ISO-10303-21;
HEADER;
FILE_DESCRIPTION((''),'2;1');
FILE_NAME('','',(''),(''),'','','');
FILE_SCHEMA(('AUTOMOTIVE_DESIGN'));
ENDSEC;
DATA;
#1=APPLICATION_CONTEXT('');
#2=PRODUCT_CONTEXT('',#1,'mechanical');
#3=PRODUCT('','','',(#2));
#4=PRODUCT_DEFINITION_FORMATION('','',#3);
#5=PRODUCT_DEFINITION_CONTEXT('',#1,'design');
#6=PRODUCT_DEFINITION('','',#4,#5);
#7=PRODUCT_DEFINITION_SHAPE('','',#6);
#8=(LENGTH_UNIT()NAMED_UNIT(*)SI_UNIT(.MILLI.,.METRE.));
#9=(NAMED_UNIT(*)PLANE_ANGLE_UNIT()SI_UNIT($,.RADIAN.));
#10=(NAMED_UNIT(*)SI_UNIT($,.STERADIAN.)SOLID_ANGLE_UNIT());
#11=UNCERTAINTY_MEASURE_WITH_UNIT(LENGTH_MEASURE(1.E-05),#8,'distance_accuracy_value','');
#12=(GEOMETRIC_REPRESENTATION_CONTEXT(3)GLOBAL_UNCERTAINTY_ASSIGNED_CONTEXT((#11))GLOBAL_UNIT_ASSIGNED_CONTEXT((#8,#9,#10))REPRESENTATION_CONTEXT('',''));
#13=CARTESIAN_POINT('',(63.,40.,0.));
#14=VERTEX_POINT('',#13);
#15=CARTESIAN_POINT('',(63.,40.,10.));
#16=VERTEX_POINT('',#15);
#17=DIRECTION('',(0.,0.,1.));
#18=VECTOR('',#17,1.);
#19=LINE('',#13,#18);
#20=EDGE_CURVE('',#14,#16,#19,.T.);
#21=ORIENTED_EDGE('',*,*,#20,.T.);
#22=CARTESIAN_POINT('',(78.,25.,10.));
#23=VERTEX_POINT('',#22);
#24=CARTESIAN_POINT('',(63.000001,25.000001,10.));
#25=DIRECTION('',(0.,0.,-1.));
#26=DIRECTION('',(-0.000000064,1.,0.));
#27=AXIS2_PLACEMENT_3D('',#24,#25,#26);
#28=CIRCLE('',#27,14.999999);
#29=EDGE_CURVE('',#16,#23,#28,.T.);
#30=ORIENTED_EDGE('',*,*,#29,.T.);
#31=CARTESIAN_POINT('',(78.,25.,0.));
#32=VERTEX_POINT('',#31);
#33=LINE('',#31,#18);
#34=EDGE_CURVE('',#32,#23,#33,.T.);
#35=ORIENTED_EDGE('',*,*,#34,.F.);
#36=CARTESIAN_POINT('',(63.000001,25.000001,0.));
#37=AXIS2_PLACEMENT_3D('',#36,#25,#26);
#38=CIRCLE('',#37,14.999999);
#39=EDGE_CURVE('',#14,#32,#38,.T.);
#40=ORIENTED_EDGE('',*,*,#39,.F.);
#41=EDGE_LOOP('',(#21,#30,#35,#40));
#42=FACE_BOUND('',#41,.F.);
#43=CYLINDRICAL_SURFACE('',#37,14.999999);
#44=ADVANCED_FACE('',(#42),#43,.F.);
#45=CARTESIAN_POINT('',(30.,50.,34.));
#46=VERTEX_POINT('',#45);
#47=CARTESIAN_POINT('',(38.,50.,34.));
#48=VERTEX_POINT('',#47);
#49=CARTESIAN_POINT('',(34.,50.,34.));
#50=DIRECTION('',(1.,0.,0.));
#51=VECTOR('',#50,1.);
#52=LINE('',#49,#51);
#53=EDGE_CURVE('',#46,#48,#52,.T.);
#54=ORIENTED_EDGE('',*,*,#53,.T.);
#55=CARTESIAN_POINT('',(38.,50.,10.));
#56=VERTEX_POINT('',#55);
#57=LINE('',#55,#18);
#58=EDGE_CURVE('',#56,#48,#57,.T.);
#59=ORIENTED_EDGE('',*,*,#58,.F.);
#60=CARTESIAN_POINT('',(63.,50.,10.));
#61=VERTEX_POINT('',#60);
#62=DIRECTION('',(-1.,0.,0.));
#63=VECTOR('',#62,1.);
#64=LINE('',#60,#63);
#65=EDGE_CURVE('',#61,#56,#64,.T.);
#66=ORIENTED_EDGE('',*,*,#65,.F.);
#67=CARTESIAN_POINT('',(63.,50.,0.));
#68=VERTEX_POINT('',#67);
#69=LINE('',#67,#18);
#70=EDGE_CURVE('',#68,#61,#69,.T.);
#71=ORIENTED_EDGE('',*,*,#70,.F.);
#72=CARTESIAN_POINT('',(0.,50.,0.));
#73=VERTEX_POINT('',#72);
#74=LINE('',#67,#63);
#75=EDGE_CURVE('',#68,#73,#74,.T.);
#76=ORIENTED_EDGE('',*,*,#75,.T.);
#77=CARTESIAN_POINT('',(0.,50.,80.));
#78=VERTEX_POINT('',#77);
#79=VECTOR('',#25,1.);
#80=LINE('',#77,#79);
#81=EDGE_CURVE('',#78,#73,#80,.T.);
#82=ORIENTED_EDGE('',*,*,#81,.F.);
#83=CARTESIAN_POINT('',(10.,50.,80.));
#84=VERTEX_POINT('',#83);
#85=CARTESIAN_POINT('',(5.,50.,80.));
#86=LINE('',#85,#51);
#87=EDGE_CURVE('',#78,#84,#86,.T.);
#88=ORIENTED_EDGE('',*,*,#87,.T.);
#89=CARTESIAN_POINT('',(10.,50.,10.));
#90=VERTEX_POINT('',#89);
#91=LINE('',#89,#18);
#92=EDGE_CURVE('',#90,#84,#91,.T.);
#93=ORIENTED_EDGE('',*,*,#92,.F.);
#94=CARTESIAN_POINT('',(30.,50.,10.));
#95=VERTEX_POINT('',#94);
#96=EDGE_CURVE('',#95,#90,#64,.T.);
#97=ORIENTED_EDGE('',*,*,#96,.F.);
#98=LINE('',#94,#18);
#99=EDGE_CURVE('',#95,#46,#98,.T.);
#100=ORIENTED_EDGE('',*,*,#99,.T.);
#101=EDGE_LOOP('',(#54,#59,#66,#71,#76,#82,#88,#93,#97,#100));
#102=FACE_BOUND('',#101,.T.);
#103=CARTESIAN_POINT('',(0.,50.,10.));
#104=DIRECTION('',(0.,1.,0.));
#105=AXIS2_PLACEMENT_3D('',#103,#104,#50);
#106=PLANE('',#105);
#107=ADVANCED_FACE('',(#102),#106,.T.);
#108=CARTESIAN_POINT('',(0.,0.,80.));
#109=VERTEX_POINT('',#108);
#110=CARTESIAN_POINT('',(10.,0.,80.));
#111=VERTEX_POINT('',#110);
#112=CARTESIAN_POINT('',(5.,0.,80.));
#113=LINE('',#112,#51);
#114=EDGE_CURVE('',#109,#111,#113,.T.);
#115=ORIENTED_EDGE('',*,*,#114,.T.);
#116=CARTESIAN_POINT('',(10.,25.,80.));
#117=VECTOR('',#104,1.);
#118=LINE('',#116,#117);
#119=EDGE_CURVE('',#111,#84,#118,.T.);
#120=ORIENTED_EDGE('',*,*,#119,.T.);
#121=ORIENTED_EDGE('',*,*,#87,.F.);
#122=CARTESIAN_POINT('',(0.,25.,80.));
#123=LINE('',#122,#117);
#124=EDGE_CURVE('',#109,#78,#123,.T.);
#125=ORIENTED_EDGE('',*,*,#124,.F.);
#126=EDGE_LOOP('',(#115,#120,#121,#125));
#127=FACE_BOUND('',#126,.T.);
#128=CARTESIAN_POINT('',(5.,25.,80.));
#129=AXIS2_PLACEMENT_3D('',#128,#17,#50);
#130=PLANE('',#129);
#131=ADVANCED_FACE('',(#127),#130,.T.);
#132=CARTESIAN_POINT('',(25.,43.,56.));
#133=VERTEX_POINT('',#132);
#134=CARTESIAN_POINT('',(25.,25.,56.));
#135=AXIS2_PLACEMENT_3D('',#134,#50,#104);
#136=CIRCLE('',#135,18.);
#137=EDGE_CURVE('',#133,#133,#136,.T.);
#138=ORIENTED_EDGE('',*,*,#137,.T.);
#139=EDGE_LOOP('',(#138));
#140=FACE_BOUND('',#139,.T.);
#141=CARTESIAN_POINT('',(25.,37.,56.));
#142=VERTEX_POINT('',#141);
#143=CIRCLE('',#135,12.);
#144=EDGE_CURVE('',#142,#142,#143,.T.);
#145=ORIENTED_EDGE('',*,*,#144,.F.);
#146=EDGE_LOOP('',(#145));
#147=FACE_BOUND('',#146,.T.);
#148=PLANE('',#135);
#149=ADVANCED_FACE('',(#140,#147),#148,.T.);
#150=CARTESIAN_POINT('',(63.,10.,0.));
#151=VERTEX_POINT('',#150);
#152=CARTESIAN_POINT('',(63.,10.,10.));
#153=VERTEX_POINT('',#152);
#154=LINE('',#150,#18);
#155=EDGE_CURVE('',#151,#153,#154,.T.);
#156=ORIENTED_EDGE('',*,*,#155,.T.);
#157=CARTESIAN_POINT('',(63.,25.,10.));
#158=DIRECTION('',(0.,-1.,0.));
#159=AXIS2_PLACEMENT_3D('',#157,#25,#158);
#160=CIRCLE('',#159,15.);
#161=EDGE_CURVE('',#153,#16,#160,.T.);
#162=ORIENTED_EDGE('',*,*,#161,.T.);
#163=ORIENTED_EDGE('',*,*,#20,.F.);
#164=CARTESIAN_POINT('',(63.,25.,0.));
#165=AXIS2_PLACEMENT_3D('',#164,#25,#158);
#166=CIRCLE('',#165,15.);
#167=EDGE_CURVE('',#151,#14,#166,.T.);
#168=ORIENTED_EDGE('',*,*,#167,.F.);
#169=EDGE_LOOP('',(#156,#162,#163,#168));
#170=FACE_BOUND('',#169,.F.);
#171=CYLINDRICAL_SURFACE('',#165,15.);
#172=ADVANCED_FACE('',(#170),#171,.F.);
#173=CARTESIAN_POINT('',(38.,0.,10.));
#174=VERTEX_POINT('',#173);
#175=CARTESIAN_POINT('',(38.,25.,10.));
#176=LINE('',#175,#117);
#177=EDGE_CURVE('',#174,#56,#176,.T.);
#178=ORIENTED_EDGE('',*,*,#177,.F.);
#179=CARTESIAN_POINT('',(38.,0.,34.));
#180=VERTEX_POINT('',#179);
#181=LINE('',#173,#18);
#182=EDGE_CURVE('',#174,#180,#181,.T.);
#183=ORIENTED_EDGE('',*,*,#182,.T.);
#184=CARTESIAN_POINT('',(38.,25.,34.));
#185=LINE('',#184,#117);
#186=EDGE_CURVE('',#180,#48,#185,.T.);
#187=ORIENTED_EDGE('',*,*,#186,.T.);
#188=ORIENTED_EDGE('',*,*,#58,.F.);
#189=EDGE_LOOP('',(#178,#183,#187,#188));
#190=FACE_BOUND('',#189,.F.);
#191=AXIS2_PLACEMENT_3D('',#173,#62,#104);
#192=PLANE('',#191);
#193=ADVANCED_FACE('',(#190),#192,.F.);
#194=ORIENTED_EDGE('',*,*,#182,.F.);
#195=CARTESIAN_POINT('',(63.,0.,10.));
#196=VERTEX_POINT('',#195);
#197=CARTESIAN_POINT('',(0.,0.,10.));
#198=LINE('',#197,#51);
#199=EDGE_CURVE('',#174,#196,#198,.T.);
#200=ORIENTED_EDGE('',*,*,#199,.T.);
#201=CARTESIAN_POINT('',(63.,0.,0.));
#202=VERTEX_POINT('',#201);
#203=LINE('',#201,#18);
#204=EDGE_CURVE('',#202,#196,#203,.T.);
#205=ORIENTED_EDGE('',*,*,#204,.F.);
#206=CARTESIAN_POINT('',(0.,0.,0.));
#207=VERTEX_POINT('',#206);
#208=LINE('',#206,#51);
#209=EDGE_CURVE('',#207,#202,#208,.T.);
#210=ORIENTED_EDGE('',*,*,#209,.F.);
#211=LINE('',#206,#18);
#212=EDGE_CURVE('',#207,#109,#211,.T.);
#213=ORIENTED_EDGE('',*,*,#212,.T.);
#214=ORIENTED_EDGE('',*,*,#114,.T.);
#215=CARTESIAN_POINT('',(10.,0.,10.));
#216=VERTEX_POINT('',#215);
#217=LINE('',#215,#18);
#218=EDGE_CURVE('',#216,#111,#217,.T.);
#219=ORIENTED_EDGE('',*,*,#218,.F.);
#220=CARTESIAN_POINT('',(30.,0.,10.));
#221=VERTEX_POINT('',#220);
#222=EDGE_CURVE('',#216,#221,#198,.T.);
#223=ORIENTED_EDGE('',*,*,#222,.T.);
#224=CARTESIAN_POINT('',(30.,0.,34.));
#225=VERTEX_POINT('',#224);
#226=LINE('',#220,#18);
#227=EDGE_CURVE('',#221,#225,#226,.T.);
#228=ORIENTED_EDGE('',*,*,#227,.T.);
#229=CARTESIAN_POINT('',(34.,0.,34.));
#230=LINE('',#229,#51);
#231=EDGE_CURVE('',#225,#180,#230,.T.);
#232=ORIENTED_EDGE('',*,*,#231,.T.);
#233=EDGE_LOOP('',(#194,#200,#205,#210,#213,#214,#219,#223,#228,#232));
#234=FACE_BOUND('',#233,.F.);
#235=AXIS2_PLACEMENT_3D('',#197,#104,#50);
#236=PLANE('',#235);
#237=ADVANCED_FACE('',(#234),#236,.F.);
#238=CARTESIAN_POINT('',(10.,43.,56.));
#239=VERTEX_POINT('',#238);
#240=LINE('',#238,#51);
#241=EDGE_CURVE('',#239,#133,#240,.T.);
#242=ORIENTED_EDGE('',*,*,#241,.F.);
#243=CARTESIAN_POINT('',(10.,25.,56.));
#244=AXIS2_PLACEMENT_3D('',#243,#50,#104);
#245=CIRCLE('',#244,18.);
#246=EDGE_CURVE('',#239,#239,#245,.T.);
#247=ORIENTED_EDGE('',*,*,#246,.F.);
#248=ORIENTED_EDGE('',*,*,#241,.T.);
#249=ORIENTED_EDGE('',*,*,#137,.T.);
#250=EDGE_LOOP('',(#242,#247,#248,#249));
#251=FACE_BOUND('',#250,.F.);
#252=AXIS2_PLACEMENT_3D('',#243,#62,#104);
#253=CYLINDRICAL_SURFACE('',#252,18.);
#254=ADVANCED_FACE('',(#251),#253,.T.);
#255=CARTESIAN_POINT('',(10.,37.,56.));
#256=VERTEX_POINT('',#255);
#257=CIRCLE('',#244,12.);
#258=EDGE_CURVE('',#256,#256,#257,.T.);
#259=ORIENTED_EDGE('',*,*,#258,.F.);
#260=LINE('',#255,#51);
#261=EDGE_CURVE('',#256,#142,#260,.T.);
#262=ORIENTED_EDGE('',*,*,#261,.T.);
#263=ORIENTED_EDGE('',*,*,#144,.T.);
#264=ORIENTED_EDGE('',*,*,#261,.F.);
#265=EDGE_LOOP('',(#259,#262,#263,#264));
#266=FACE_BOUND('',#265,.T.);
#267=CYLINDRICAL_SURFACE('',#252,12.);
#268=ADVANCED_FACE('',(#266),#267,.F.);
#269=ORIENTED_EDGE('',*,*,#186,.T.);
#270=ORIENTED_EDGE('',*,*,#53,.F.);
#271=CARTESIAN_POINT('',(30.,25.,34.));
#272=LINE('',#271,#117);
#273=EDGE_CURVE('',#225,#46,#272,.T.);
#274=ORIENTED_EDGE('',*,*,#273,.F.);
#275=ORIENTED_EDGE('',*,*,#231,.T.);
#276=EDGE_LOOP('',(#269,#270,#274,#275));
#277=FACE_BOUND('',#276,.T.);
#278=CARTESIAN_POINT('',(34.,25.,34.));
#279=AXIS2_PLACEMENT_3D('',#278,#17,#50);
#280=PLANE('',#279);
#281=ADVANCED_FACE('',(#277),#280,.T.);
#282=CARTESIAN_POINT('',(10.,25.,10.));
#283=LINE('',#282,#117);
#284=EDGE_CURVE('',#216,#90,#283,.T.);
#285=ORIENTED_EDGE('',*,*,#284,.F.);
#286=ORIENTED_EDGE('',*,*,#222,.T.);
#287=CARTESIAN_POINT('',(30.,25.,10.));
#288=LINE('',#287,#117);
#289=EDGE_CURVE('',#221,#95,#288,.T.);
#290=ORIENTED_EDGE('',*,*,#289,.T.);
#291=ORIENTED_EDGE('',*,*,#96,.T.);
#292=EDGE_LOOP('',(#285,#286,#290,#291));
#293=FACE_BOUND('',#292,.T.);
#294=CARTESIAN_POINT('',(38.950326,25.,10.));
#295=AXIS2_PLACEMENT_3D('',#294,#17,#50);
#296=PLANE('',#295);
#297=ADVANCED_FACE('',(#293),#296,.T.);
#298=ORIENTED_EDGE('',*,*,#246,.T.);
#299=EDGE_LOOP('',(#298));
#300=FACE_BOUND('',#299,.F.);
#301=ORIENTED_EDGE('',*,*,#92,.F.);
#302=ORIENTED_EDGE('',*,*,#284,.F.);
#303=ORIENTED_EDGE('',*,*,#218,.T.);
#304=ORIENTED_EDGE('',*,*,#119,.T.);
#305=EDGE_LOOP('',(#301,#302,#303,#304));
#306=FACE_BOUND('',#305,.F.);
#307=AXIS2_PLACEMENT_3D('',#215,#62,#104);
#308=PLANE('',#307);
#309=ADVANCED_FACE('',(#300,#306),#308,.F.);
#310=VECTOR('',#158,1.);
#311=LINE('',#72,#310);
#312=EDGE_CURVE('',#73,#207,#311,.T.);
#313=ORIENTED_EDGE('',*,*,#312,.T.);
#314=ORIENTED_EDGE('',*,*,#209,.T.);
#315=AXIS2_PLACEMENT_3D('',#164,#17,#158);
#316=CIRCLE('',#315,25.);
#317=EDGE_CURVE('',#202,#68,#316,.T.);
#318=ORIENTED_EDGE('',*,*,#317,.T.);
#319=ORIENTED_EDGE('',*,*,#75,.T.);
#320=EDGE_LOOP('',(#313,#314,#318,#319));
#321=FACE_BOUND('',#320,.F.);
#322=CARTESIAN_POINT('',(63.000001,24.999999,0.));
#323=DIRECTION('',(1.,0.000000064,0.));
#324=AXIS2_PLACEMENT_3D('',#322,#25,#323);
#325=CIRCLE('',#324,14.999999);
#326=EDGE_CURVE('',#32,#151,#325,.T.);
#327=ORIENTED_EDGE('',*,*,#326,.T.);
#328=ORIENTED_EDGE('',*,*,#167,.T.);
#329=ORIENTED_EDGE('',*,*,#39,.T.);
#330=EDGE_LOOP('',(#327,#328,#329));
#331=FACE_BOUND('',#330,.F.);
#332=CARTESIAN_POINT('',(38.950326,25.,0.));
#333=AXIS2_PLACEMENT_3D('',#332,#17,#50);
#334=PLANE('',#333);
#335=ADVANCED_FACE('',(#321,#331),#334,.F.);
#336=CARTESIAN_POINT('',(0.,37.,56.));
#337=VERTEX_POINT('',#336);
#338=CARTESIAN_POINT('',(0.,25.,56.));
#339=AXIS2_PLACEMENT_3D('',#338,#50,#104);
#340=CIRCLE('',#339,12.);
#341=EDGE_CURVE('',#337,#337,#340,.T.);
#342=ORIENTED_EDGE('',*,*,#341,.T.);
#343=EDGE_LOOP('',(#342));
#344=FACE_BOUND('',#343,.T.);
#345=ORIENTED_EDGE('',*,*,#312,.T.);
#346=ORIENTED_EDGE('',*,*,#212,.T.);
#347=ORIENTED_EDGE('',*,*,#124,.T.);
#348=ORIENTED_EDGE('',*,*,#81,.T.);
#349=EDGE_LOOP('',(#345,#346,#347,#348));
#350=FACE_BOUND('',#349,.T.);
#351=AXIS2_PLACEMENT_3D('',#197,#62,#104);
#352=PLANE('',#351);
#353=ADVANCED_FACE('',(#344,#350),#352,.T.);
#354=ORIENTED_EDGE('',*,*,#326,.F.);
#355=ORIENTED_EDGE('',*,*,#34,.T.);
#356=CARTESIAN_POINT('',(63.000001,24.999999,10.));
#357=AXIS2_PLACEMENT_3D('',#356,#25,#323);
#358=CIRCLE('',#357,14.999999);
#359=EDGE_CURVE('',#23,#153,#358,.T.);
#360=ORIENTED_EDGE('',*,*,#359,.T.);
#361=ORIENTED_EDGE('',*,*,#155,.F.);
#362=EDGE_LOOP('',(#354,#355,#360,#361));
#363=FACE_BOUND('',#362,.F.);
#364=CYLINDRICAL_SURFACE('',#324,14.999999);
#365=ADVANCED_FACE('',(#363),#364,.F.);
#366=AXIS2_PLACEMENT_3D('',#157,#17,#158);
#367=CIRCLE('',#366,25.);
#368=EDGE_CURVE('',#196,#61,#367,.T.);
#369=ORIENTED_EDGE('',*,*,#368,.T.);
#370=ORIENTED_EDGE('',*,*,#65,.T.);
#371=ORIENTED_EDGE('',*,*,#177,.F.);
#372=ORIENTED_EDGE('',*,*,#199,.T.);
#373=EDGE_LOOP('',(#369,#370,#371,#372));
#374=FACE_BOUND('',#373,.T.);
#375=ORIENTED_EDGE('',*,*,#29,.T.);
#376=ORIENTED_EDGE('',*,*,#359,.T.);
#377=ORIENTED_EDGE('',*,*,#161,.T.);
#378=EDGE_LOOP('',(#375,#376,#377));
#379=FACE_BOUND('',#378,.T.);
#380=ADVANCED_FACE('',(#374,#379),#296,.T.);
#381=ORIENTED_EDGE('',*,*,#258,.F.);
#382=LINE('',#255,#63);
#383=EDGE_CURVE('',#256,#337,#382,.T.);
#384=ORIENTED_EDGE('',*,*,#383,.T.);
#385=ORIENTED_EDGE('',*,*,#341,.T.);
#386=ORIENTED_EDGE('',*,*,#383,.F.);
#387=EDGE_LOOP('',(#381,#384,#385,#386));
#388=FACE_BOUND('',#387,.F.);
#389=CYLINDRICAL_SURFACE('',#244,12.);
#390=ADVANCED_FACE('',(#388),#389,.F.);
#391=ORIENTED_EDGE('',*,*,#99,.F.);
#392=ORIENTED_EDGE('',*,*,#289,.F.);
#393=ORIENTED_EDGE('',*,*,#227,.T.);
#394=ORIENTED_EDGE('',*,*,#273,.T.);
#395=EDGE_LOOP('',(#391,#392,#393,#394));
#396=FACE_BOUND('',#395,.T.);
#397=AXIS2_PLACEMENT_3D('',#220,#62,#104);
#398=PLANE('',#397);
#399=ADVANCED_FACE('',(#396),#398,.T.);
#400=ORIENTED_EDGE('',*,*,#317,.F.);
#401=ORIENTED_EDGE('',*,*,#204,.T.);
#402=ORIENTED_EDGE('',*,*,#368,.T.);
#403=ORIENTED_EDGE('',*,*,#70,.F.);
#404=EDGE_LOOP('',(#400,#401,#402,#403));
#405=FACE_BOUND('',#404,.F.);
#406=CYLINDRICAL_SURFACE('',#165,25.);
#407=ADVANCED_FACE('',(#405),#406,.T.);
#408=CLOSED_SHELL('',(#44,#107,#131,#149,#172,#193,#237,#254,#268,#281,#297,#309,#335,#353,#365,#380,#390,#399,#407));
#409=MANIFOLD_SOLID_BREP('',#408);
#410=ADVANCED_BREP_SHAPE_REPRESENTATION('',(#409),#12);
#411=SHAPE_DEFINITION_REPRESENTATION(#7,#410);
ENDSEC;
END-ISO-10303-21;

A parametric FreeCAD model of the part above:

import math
import FreeCAD as App
import Part
import Sketcher

doc = App.newDocument("Part")
body = doc.addObject("PartDesign::Body", "Body")

# Sketch on XY plane
sketch1 = body.newObject("Sketcher::SketchObject", "Sketch")
sketch1.AttachmentSupport = (doc.getObject("XY_Plane"), [""])
sketch1.MapMode = "FlatFace"
sketch1.addGeometry([
    Part.LineSegment(App.Vector(0, 50, 0), App.Vector(0, 0, 0)),  # 0
    Part.LineSegment(App.Vector(0, 0, 0), App.Vector(63, 0, 0)),  # 1
    Part.ArcOfCircle(Part.Circle(App.Vector(63, 25, 0), App.Vector(0, 0, 1), 25), math.radians(-90), math.radians(90)),  # 2
    Part.LineSegment(App.Vector(63, 50, 0), App.Vector(0, 50, 0)),  # 3
    Part.ArcOfCircle(Part.Circle(App.Vector(63.000001, 25.000001, 0), App.Vector(0, 0, 1), 14.999999), math.radians(-0.000004), math.radians(90.000004)),  # 4
    Part.ArcOfCircle(Part.Circle(App.Vector(63.000001, 24.999999, 0), App.Vector(0, 0, 1), 14.999999), math.radians(-90.000004), math.radians(0.000004)),  # 5
    Part.ArcOfCircle(Part.Circle(App.Vector(63, 25, 0), App.Vector(0, 0, 1), 15), math.radians(90), math.radians(270)),  # 6
], False)
sketch1.addConstraint([
    Sketcher.Constraint("Coincident", 0, 2, 1, 1),
    Sketcher.Constraint("Tangent", 1, 2, 2, 1),
    Sketcher.Constraint("Tangent", 2, 2, 3, 1),
    Sketcher.Constraint("Coincident", 3, 2, 0, 1),
    Sketcher.Constraint("Tangent", 4, 1, 5, 2),
    Sketcher.Constraint("Tangent", 5, 1, 6, 2),
    Sketcher.Constraint("Tangent", 6, 1, 4, 2),
    Sketcher.Constraint("Vertical", 0),
    Sketcher.Constraint("Horizontal", 1),
    Sketcher.Constraint("Horizontal", 3),
    Sketcher.Constraint("Coincident", 0, 2, -1, 1),
    Sketcher.Constraint("Coincident", 4, 3, 2, 3),
    Sketcher.Constraint("Horizontal", 6, 3, 4, 1),
    Sketcher.Constraint("Vertical", 2, 2, 5, 1),
    Sketcher.Constraint("Vertical", 5, 1, 6, 1),
    Sketcher.Constraint("Radius", 2, 25.0),
    Sketcher.Constraint("Radius", 4, 14.999999),
    Sketcher.Constraint("DistanceX", 1, 1, 1, 2, 63.0),
])
pad1 = body.newObject("PartDesign::Pad", "Pad")
pad1.Profile = sketch1
pad1.Length = 10

# Sketch on XY plane
sketch2 = body.newObject("Sketcher::SketchObject", "Sketch001")
sketch2.AttachmentSupport = (doc.getObject("XY_Plane"), [""])
sketch2.MapMode = "FlatFace"
sketch2.AttachmentOffset = App.Placement(App.Vector(0, 0, 10), App.Rotation())
sketch2.addGeometry([
    Part.LineSegment(App.Vector(30, 50, 0), App.Vector(30, 0, 0)),
    Part.LineSegment(App.Vector(30, 0, 0), App.Vector(38, 0, 0)),
    Part.LineSegment(App.Vector(38, 0, 0), App.Vector(38, 50, 0)),
    Part.LineSegment(App.Vector(38, 50, 0), App.Vector(30, 50, 0)),
], False)
sketch2.addConstraint([
    Sketcher.Constraint("Coincident", 0, 2, 1, 1),
    Sketcher.Constraint("Coincident", 1, 2, 2, 1),
    Sketcher.Constraint("Coincident", 2, 2, 3, 1),
    Sketcher.Constraint("Coincident", 3, 2, 0, 1),
    Sketcher.Constraint("Vertical", 0),
    Sketcher.Constraint("Horizontal", 1),
    Sketcher.Constraint("Vertical", 2),
    Sketcher.Constraint("Horizontal", 3),
    Sketcher.Constraint("PointOnObject", 0, 2, -1),
    Sketcher.Constraint("DistanceX", 1, 1, 1, 2, 8.0),
    Sketcher.Constraint("DistanceY", 0, 2, 0, 1, 50.0),
    Sketcher.Constraint("DistanceX", -1, 1, 0, 2, 30.0),
])
pad2 = body.newObject("PartDesign::Pad", "Pad001")
pad2.Profile = sketch2
pad2.Length = 24

# Sketch on XY plane
sketch3 = body.newObject("Sketcher::SketchObject", "Sketch002")
sketch3.AttachmentSupport = (doc.getObject("XY_Plane"), [""])
sketch3.MapMode = "FlatFace"
sketch3.AttachmentOffset = App.Placement(App.Vector(0, 0, 10), App.Rotation())
sketch3.addGeometry([
    Part.LineSegment(App.Vector(0, 50, 0), App.Vector(0, 0, 0)),
    Part.LineSegment(App.Vector(0, 0, 0), App.Vector(10, 0, 0)),
    Part.LineSegment(App.Vector(10, 0, 0), App.Vector(10, 50, 0)),
    Part.LineSegment(App.Vector(10, 50, 0), App.Vector(0, 50, 0)),
], False)
sketch3.addConstraint([
    Sketcher.Constraint("Coincident", 0, 2, 1, 1),
    Sketcher.Constraint("Coincident", 1, 2, 2, 1),
    Sketcher.Constraint("Coincident", 2, 2, 3, 1),
    Sketcher.Constraint("Coincident", 3, 2, 0, 1),
    Sketcher.Constraint("Vertical", 0),
    Sketcher.Constraint("Horizontal", 1),
    Sketcher.Constraint("Vertical", 2),
    Sketcher.Constraint("Horizontal", 3),
    Sketcher.Constraint("Coincident", 0, 2, -1, 1),
    Sketcher.Constraint("DistanceX", 1, 1, 1, 2, 10.0),
    Sketcher.Constraint("DistanceY", 0, 2, 0, 1, 50.0),
])
pad3 = body.newObject("PartDesign::Pad", "Pad002")
pad3.Profile = sketch3
pad3.Length = 70

# Sketch on YZ plane
sketch4 = body.newObject("Sketcher::SketchObject", "Sketch003")
sketch4.AttachmentSupport = (doc.getObject("YZ_Plane"), [""])
sketch4.MapMode = "FlatFace"
sketch4.AttachmentOffset = App.Placement(App.Vector(0, 0, 10), App.Rotation())
sketch4.addGeometry([
    Part.Circle(App.Vector(25, 56, 0), App.Vector(0, 0, 1), 18),
    Part.Circle(App.Vector(25, 56, 0), App.Vector(0, 0, 1), 12),
], False)
sketch4.addConstraint([
    Sketcher.Constraint("Coincident", 1, 3, 0, 3),
    Sketcher.Constraint("Diameter", 0, 36.0),
    Sketcher.Constraint("Diameter", 1, 24.0),
    Sketcher.Constraint("DistanceX", -1, 1, 0, 3, 25.0),
    Sketcher.Constraint("DistanceY", -1, 1, 0, 3, 56.0),
])
pad4 = body.newObject("PartDesign::Pad", "Pad003")
pad4.Profile = sketch4
pad4.Length = 15

# Sketch on YZ plane
sketch5 = body.newObject("Sketcher::SketchObject", "Sketch004")
sketch5.AttachmentSupport = (doc.getObject("YZ_Plane"), [""])
sketch5.MapMode = "FlatFace"
sketch5.AttachmentOffset = App.Placement(App.Vector(0, 0, 10), App.Rotation())
sketch5.addGeometry(Part.Circle(App.Vector(25, 56, 0), App.Vector(0, 0, 1), 12), False)
sketch5.addConstraint([
    Sketcher.Constraint("Diameter", 0, 24.0),
    Sketcher.Constraint("DistanceX", -1, 1, 0, 3, 25.0),
    Sketcher.Constraint("DistanceY", -1, 1, 0, 3, 56.0),
])
pocket1 = body.newObject("PartDesign::Pocket", "Pocket")
pocket1.Profile = sketch5
pocket1.Type = "ThroughAll"

doc.recompute()
